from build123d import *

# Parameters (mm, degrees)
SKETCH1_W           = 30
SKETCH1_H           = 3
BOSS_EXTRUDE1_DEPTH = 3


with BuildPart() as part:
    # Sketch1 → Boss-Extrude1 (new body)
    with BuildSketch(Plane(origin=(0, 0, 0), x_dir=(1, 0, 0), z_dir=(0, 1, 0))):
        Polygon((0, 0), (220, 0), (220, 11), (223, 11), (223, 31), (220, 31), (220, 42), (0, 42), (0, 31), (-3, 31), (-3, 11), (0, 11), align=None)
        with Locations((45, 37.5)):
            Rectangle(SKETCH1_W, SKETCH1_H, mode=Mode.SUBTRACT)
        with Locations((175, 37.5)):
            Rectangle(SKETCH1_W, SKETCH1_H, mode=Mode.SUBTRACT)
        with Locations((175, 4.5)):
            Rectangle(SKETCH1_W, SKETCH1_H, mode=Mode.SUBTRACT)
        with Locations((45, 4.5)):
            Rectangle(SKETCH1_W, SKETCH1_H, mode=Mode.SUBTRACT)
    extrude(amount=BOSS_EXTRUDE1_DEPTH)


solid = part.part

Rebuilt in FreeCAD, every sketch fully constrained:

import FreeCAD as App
import Part
import Sketcher
from FreeCAD import Vector
Q = App.Units.Quantity


def add_polygon(sketch, points):
    """Adds a closed chain of lines whose ends are joined by coincident constraints."""
    first, n = sketch.GeometryCount, len(points)
    for a, b in zip(points, points[1:] + points[:1]):
        sketch.addGeometry(Part.LineSegment(App.Vector(*a, 0), App.Vector(*b, 0)), False)
    for i in range(n):
        sketch.addConstraint(Sketcher.Constraint("Coincident", first + i, 2, first + (i + 1) % n, 1))

doc = App.newDocument("Part")
params = doc.addObject("Spreadsheet::Sheet", "Params")
for row, (alias, value) in enumerate([
    ("sketch1_width", "220 mm"),
    ("sketch1_width2", "3 mm"),
    ("sketch1_width3", "30 mm"),
    ("sketch1_height", "11 mm"),
    ("sketch1_height2", "20 mm"),
    ("pad1_length", "3 mm"),
], start=1):
    params.set(f"A{row}", alias)
    params.set(f"B{row}", "=" + value)
    params.setAlias(f"B{row}", alias)

body = doc.addObject("PartDesign::Body", "Body")

sketch1 = body.newObject("Sketcher::SketchObject", "Sketch")
sketch1.AttachmentSupport = (doc.getObject("XZ_Plane"), [""])
sketch1.MapMode = "FlatFace"
add_polygon(sketch1, [(0, 0), (220, 0), (220, -11), (223, -11), (223, -31), (220, -31), (220, -42), (0, -42), (0, -31), (-3, -31), (-3, -11), (0, -11)])
add_polygon(sketch1, [(60, -3), (30, -3), (30, -6), (60, -6)])
add_polygon(sketch1, [(190, -3), (160, -3), (160, -6), (190, -6)])
add_polygon(sketch1, [(60, -36), (30, -36), (30, -39), (60, -39)])
add_polygon(sketch1, [(190, -36), (160, -36), (160, -39), (190, -39)])
sketch1.addConstraint([
    Sketcher.Constraint("Horizontal", 0),
    Sketcher.Constraint("Vertical", 1),
    Sketcher.Constraint("Horizontal", 2),
    Sketcher.Constraint("Vertical", 3),
    Sketcher.Constraint("Horizontal", 4),
    Sketcher.Constraint("Vertical", 5),
    Sketcher.Constraint("Horizontal", 6),
    Sketcher.Constraint("Vertical", 7),
    Sketcher.Constraint("Horizontal", 8),
    Sketcher.Constraint("Vertical", 9),
    Sketcher.Constraint("Horizontal", 10),
    Sketcher.Constraint("Vertical", 11),
    Sketcher.Constraint("Horizontal", 12),
    Sketcher.Constraint("Vertical", 13),
    Sketcher.Constraint("Horizontal", 14),
    Sketcher.Constraint("Vertical", 15),
    Sketcher.Constraint("Horizontal", 16),
    Sketcher.Constraint("Vertical", 17),
    Sketcher.Constraint("Horizontal", 18),
    Sketcher.Constraint("Vertical", 19),
    Sketcher.Constraint("Horizontal", 20),
    Sketcher.Constraint("Vertical", 21),
    Sketcher.Constraint("Horizontal", 22),
    Sketcher.Constraint("Vertical", 23),
    Sketcher.Constraint("Horizontal", 24),
    Sketcher.Constraint("Vertical", 25),
    Sketcher.Constraint("Horizontal", 26),
    Sketcher.Constraint("Vertical", 27),
    Sketcher.Constraint("Coincident", 11, 2, -1, 1),
    Sketcher.Constraint("PointOnObject", 6, 2, -2),
    Sketcher.Constraint("Horizontal", 4, 2, 7, 2),
    Sketcher.Constraint("Horizontal", 2, 2, 9, 2),
    Sketcher.Constraint("Horizontal", 15, 2, 16, 2),
    Sketcher.Constraint("Horizontal", 14, 2, 17, 2),
    Sketcher.Constraint("Horizontal", 23, 2, 24, 2),
    Sketcher.Constraint("Horizontal", 22, 2, 25, 2),
    Sketcher.Constraint("Vertical", 1, 2, 4, 2),
    Sketcher.Constraint("Vertical", 13, 2, 20, 2),
    Sketcher.Constraint("Vertical", 15, 2, 22, 2),
    Sketcher.Constraint("Vertical", 17, 2, 24, 2),
    Sketcher.Constraint("Vertical", 19, 2, 26, 2),
    Sketcher.Constraint("Equal", 4, 8),
    Sketcher.Constraint("Equal", 14, 16),
    Sketcher.Constraint("Equal", 1, 5),
    Sketcher.Constraint("Equal", 10, 13),
    Sketcher.Constraint("Equal", 19, 21),
    Sketcher.Constraint("DistanceX", 0, 1, 0, 2, Q("220 mm")),
    Sketcher.Constraint("DistanceX", 2, 1, 2, 2, Q("3 mm")),
    Sketcher.Constraint("DistanceX", 12, 2, 12, 1, Q("30 mm")),
    Sketcher.Constraint("DistanceY", 1, 2, 1, 1, Q("11 mm")),
    Sketcher.Constraint("DistanceY", 3, 2, 3, 1, Q("20 mm")),
    Sketcher.Constraint("DistanceX", -1, 1, 12, 2, Q("30 mm")),
    Sketcher.Constraint("DistanceY", 12, 2, -1, 1, Q("3 mm")),
    Sketcher.Constraint("DistanceX", -1, 1, 16, 2, Q("160 mm")),
    Sketcher.Constraint("DistanceY", 20, 2, -1, 1, Q("36 mm")),
])
sketch1.setExpression("Constraints[74]", "Params.sketch1_width")
sketch1.setExpression("Constraints[75]", "Params.sketch1_width2")
sketch1.setExpression("Constraints[76]", "Params.sketch1_width3")
sketch1.setExpression("Constraints[77]", "Params.sketch1_height")
sketch1.setExpression("Constraints[78]", "Params.sketch1_height2")
pad1 = body.newObject("PartDesign::Pad", "Pad")
pad1.Profile = sketch1
pad1.setExpression("Length", "Params.pad1_length")
pad1.Reversed = True

doc.recompute()
